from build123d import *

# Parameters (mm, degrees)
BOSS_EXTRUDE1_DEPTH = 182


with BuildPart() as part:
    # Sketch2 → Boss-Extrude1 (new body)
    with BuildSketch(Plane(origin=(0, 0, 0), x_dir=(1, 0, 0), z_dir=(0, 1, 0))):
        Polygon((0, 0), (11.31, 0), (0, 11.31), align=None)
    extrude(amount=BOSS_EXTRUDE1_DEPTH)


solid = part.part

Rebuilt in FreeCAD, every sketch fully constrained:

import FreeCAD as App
import Part
import Sketcher
from FreeCAD import Vector


def add_polygon(sketch, points):
    """Adds a closed chain of lines whose ends are joined by coincident constraints."""
    first, n = sketch.GeometryCount, len(points)
    for a, b in zip(points, points[1:] + points[:1]):
        sketch.addGeometry(Part.LineSegment(App.Vector(*a, 0), App.Vector(*b, 0)), False)
    for i in range(n):
        sketch.addConstraint(Sketcher.Constraint("Coincident", first + i, 2, first + (i + 1) % n, 1))

doc = App.newDocument("Part")
body = doc.addObject("PartDesign::Body", "Body")

# Sketch on XZ plane
sketch1 = body.newObject("Sketcher::SketchObject", "Sketch")
sketch1.AttachmentSupport = (doc.getObject("XZ_Plane"), [""])
sketch1.MapMode = "FlatFace"
add_polygon(sketch1, [(0, 0), (11, 0), (0, -11)])  # lines 0-2
sketch1.addConstraint(Sketcher.Constraint("Horizontal", 0))
sketch1.addConstraint(Sketcher.Constraint("Vertical", 2))
sketch1.addConstraint(Sketcher.Constraint("Coincident", 2, 2, -1, 1))
sketch1.addConstraint(Sketcher.Constraint("Equal", 0, 2))
sketch1.addConstraint(Sketcher.Constraint("DistanceX", 0, 1, 0, 2, 11.31))
pad1 = body.newObject("PartDesign::Pad", "Pad")
pad1.Profile = sketch1
pad1.Length = 182
pad1.Reversed = True

doc.recompute()
